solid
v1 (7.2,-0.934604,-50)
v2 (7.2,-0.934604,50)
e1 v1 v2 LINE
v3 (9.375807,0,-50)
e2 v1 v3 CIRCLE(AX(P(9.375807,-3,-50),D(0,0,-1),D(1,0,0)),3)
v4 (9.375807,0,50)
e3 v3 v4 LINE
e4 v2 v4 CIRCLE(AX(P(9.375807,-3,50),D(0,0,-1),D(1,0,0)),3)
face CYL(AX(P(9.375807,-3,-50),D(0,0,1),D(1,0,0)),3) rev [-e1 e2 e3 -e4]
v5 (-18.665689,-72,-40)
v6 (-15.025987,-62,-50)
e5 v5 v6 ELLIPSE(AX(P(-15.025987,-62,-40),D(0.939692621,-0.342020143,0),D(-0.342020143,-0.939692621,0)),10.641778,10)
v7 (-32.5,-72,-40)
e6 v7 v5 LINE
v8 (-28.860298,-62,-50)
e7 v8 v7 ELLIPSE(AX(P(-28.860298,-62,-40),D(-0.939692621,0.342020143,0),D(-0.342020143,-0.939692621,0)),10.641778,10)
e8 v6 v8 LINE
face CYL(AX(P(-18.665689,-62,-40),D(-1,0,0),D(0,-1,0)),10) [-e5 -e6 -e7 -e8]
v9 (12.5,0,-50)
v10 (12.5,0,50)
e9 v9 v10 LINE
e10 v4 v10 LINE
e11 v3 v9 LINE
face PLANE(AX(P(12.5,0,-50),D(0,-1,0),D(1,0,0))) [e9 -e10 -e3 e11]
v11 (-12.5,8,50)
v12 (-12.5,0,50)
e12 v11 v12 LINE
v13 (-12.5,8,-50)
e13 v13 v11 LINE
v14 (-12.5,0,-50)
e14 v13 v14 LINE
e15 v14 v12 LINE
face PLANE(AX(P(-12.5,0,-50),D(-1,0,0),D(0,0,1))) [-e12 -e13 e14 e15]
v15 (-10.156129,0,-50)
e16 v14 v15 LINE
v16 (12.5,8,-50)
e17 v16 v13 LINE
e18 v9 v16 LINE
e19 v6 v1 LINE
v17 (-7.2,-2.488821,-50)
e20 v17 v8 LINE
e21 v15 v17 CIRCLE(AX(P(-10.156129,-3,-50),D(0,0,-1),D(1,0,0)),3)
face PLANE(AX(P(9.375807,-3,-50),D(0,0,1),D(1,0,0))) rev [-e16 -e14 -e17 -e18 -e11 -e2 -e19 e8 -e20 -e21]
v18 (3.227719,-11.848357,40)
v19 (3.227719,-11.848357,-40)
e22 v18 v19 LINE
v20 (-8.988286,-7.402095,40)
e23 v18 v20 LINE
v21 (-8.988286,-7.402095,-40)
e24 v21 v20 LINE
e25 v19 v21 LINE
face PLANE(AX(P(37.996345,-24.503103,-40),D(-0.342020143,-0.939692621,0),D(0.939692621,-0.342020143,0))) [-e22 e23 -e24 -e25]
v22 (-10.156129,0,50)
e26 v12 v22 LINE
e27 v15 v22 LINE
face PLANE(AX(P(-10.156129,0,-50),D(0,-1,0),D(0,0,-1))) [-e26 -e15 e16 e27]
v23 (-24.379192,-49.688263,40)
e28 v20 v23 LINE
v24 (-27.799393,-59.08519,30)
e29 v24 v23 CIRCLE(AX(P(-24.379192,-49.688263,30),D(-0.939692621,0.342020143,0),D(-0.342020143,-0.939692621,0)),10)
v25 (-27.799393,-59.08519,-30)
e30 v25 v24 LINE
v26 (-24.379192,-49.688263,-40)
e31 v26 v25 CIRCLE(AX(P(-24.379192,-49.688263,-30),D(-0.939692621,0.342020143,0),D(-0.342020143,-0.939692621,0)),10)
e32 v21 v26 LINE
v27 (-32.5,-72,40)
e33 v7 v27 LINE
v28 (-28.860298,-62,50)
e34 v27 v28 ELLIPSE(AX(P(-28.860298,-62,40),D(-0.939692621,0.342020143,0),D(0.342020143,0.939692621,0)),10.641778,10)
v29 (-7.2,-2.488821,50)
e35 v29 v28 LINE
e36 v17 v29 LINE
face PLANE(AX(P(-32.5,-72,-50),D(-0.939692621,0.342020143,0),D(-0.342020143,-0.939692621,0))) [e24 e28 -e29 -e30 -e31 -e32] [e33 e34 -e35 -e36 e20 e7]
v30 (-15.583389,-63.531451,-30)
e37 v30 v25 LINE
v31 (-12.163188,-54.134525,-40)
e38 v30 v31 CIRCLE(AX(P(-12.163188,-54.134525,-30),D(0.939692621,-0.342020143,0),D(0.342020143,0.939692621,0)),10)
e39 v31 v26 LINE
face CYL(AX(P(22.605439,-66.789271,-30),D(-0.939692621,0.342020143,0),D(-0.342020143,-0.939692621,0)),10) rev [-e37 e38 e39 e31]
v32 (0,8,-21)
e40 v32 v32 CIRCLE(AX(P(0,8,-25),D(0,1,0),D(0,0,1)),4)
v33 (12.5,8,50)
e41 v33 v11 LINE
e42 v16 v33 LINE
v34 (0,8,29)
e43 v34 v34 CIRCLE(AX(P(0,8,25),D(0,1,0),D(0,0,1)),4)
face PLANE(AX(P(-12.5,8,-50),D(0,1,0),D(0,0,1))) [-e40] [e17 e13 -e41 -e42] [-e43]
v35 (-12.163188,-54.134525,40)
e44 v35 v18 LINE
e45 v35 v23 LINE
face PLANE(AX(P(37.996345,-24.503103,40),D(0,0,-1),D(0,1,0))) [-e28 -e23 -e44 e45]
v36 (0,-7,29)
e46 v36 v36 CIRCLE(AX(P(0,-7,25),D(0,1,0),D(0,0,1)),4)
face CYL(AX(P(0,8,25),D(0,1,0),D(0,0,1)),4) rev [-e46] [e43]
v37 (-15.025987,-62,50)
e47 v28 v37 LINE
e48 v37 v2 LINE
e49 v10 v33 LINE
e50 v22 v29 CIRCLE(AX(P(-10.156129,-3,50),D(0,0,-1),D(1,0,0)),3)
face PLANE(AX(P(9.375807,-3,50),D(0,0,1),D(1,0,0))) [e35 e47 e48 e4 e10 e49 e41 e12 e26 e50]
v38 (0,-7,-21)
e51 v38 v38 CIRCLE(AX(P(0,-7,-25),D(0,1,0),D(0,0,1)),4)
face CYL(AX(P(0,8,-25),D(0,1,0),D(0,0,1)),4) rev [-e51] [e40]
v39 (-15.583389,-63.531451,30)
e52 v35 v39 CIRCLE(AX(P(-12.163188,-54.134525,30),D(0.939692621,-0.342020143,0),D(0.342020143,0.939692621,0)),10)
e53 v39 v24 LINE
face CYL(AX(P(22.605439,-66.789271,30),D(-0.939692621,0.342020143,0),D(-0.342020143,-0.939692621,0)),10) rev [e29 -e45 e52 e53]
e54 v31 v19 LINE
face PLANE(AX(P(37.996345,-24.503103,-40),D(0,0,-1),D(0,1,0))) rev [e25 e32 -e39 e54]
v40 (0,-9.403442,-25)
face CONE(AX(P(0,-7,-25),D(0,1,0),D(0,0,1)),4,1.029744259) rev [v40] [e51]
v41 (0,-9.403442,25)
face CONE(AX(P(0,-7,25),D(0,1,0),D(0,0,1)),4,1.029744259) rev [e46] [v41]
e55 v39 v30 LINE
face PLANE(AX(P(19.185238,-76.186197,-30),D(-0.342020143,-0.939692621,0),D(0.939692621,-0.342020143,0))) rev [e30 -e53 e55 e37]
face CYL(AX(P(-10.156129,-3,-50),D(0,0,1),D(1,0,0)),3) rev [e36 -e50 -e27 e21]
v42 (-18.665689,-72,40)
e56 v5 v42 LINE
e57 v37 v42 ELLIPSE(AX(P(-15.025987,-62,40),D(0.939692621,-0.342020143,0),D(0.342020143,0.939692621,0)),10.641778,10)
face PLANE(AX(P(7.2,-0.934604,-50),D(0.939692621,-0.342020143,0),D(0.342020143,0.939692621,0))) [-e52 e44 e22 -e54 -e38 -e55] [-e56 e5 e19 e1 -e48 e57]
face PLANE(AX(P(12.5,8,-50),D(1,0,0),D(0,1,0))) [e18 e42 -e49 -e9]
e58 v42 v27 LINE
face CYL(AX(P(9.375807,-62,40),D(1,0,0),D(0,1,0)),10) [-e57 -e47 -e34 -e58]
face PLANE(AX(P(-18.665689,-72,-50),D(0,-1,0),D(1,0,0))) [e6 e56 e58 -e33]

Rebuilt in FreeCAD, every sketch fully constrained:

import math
import FreeCAD as App
import Part
import Sketcher
from FreeCAD import Vector
Q = App.Units.Quantity


def edges_at(feature, points):
    """Names of the edges that pass closest to the given points."""
    edges = feature.Shape.Edges
    near = lambda p: min(range(len(edges)), key=lambda i: edges[i].distToShape(Part.Vertex(*p))[0])
    return sorted({f"Edge{near(p) + 1}" for p in points})

doc = App.newDocument("Part")
body = doc.addObject("PartDesign::Body", "Body")

sketch1 = body.newObject("Sketcher::SketchObject", "Sketch")
sketch1.AttachmentSupport = (doc.getObject("XY_Plane"), [""])
sketch1.MapMode = "FlatFace"
sketch1.addGeometry([
    Part.LineSegment(Vector(12.5, 8, 0), Vector(-12.5, 8, 0)),
    Part.LineSegment(Vector(-12.5, 8, 0), Vector(-12.5, 0, 0)),
    Part.LineSegment(Vector(-12.5, 0, 0), Vector(-10.2, 0, 0)),
    Part.ArcOfCircle(Part.Circle(Vector(-10.2, -3, 0), Vector(0, 0, 1), 3), math.radians(10), math.radians(90)),
    Part.LineSegment(Vector(-7.2, -2.5, 0), Vector(-32.5, -72, 0)),
    Part.LineSegment(Vector(-32.5, -72, 0), Vector(-18.7, -72, 0)),
    Part.LineSegment(Vector(-18.7, -72, 0), Vector(7.2, -0.9, 0)),
    Part.ArcOfCircle(Part.Circle(Vector(9.4, -3, 0), Vector(0, 0, 1), 3), math.radians(90), math.radians(136)),
    Part.LineSegment(Vector(9.4, 0, 0), Vector(12.5, 0, 0)),
    Part.LineSegment(Vector(12.5, 0, 0), Vector(12.5, 8, 0)),
], False)
sketch1.addConstraint([
    Sketcher.Constraint("Coincident", 0, 2, 1, 1),
    Sketcher.Constraint("Coincident", 1, 2, 2, 1),
    Sketcher.Constraint("Tangent", 2, 2, 3, 2),
    Sketcher.Constraint("Coincident", 3, 1, 4, 1),
    Sketcher.Constraint("Coincident", 4, 2, 5, 1),
    Sketcher.Constraint("Coincident", 5, 2, 6, 1),
    Sketcher.Constraint("Coincident", 6, 2, 7, 2),
    Sketcher.Constraint("Tangent", 7, 1, 8, 1),
    Sketcher.Constraint("Coincident", 8, 2, 9, 1),
    Sketcher.Constraint("Coincident", 9, 2, 0, 1),
    Sketcher.Constraint("Horizontal", 0),
    Sketcher.Constraint("Vertical", 1),
    Sketcher.Constraint("Horizontal", 2),
    Sketcher.Constraint("Horizontal", 5),
    Sketcher.Constraint("Horizontal", 8),
    Sketcher.Constraint("Vertical", 9),
    Sketcher.Constraint("Equal", 3, 7),
    Sketcher.Constraint("Symmetric", 1, 2, 8, 2, -1, 1),
    Sketcher.Constraint("PointOnObject", 1, 2, -1),
    Sketcher.Constraint("Parallel", 4, 6),
    Sketcher.Constraint("Radius", 3, 3.0),
    Sketcher.Constraint("DistanceX", 0, 2, 0, 1, 25.0),
    Sketcher.Constraint("DistanceY", 1, 2, 1, 1, 8.0),
    Sketcher.Constraint("Angle", 4, Q("-110 deg")),
    Sketcher.Constraint("DistanceY", 4, 2, -1, 1, 72.0),
    Sketcher.Constraint("DistanceX", 4, 2, 1, 2, 20.0),
    Sketcher.Constraint("DistanceX", 3, 1, -1, 1, 7.2),
    Sketcher.Constraint("DistanceX", -1, 1, 6, 2, 7.2),
    Sketcher.Constraint("DistanceX", 5, 1, 5, 2, 13.834311),
])
pad1 = body.newObject("PartDesign::Pad", "Pad")
pad1.Profile = sketch1
pad1.Type = "TwoLengths"
pad1.Length = 50
pad1.Length2 = 50
doc.recompute()

fillet = body.newObject("PartDesign::Fillet", "Fillet")
fillet.Base = (pad1, edges_at(pad1, [(-25.583, -72, -50), (-25.583, -72, 50)]))
fillet.Radius = 10

sketch2 = body.newObject("Sketcher::SketchObject", "Sketch001")
sketch2.Placement = App.Placement(Vector(-5.557868, 2.022899, 0), App.Rotation(Vector(0, 0, 1), Vector(0.342020143, 0.939692621, 0), Vector(-0.939692621, 0.342020143, 0), "ZXY"))
sketch2.addGeometry([
    Part.LineSegment(Vector(40, -10, 0), Vector(-40, -10, 0)),
    Part.LineSegment(Vector(-40, -10, 0), Vector(-40, -55, 0)),
    Part.ArcOfCircle(Part.Circle(Vector(-30, -55, 0), Vector(0, 0, 1), 10), math.radians(-180), math.radians(-90)),
    Part.LineSegment(Vector(-30, -65, 0), Vector(30, -65, 0)),
    Part.ArcOfCircle(Part.Circle(Vector(30, -55, 0), Vector(0, 0, 1), 10), math.radians(-90), math.radians(0)),
    Part.LineSegment(Vector(40, -55, 0), Vector(40, -10, 0)),
], False)
sketch2.addConstraint([
    Sketcher.Constraint("Coincident", 0, 2, 1, 1),
    Sketcher.Constraint("Tangent", 1, 2, 2, 1),
    Sketcher.Constraint("Tangent", 2, 2, 3, 1),
    Sketcher.Constraint("Tangent", 3, 2, 4, 1),
    Sketcher.Constraint("Tangent", 4, 2, 5, 1),
    Sketcher.Constraint("Coincident", 5, 2, 0, 1),
    Sketcher.Constraint("Horizontal", 0),
    Sketcher.Constraint("Vertical", 1),
    Sketcher.Constraint("Horizontal", 3),
    Sketcher.Constraint("Vertical", 5),
    Sketcher.Constraint("Equal", 2, 4),
    Sketcher.Constraint("Radius", 2, 10.0),
    Sketcher.Constraint("DistanceX", 0, 2, 0, 1, 80.0),
    Sketcher.Constraint("DistanceY", 1, 2, 1, 1, 45.0),
    Sketcher.Constraint("DistanceX", 2, 3, -1, 1, 30.0),
    Sketcher.Constraint("DistanceY", 2, 3, -1, 1, 55.029869),
])
pocket1 = body.newObject("PartDesign::Pocket", "Pocket")
pocket1.Profile = sketch2
pocket1.Length = 50

sketch3 = body.newObject("Sketcher::SketchObject", "Sketch002")
sketch3.AttachmentSupport = (doc.getObject("XZ_Plane"), [""])
sketch3.MapMode = "FlatFace"
sketch3.AttachmentOffset = App.Placement(Vector(0, 0, -8), App.Rotation())
sketch3.addGeometry([
    Part.Circle(Vector(0, -25, 0), Vector(0, 0, 1), 4),
    Part.Circle(Vector(0, 25, 0), Vector(0, 0, 1), 4),
], False)
sketch3.addConstraint([
    Sketcher.Constraint("Equal", 0, 1),
    Sketcher.Constraint("Symmetric", 0, 3, 1, 3, -1, 1),
    Sketcher.Constraint("PointOnObject", 0, 3, -2),
    Sketcher.Constraint("Diameter", 0, 8.0),
    Sketcher.Constraint("DistanceY", 0, 3, -1, 1, 25.0),
])
doc.recompute()
hole = body.newObject("PartDesign::Hole", "Hole")
hole.Profile = sketch3
hole.ThreadType = "None"
hole.Diameter = 8
hole.DepthType = "Dimension"
hole.Depth = 15
hole.DrillPoint = "Angled"
hole.DrillPointAngle = 118
hole.Reversed = True

doc.recompute()
